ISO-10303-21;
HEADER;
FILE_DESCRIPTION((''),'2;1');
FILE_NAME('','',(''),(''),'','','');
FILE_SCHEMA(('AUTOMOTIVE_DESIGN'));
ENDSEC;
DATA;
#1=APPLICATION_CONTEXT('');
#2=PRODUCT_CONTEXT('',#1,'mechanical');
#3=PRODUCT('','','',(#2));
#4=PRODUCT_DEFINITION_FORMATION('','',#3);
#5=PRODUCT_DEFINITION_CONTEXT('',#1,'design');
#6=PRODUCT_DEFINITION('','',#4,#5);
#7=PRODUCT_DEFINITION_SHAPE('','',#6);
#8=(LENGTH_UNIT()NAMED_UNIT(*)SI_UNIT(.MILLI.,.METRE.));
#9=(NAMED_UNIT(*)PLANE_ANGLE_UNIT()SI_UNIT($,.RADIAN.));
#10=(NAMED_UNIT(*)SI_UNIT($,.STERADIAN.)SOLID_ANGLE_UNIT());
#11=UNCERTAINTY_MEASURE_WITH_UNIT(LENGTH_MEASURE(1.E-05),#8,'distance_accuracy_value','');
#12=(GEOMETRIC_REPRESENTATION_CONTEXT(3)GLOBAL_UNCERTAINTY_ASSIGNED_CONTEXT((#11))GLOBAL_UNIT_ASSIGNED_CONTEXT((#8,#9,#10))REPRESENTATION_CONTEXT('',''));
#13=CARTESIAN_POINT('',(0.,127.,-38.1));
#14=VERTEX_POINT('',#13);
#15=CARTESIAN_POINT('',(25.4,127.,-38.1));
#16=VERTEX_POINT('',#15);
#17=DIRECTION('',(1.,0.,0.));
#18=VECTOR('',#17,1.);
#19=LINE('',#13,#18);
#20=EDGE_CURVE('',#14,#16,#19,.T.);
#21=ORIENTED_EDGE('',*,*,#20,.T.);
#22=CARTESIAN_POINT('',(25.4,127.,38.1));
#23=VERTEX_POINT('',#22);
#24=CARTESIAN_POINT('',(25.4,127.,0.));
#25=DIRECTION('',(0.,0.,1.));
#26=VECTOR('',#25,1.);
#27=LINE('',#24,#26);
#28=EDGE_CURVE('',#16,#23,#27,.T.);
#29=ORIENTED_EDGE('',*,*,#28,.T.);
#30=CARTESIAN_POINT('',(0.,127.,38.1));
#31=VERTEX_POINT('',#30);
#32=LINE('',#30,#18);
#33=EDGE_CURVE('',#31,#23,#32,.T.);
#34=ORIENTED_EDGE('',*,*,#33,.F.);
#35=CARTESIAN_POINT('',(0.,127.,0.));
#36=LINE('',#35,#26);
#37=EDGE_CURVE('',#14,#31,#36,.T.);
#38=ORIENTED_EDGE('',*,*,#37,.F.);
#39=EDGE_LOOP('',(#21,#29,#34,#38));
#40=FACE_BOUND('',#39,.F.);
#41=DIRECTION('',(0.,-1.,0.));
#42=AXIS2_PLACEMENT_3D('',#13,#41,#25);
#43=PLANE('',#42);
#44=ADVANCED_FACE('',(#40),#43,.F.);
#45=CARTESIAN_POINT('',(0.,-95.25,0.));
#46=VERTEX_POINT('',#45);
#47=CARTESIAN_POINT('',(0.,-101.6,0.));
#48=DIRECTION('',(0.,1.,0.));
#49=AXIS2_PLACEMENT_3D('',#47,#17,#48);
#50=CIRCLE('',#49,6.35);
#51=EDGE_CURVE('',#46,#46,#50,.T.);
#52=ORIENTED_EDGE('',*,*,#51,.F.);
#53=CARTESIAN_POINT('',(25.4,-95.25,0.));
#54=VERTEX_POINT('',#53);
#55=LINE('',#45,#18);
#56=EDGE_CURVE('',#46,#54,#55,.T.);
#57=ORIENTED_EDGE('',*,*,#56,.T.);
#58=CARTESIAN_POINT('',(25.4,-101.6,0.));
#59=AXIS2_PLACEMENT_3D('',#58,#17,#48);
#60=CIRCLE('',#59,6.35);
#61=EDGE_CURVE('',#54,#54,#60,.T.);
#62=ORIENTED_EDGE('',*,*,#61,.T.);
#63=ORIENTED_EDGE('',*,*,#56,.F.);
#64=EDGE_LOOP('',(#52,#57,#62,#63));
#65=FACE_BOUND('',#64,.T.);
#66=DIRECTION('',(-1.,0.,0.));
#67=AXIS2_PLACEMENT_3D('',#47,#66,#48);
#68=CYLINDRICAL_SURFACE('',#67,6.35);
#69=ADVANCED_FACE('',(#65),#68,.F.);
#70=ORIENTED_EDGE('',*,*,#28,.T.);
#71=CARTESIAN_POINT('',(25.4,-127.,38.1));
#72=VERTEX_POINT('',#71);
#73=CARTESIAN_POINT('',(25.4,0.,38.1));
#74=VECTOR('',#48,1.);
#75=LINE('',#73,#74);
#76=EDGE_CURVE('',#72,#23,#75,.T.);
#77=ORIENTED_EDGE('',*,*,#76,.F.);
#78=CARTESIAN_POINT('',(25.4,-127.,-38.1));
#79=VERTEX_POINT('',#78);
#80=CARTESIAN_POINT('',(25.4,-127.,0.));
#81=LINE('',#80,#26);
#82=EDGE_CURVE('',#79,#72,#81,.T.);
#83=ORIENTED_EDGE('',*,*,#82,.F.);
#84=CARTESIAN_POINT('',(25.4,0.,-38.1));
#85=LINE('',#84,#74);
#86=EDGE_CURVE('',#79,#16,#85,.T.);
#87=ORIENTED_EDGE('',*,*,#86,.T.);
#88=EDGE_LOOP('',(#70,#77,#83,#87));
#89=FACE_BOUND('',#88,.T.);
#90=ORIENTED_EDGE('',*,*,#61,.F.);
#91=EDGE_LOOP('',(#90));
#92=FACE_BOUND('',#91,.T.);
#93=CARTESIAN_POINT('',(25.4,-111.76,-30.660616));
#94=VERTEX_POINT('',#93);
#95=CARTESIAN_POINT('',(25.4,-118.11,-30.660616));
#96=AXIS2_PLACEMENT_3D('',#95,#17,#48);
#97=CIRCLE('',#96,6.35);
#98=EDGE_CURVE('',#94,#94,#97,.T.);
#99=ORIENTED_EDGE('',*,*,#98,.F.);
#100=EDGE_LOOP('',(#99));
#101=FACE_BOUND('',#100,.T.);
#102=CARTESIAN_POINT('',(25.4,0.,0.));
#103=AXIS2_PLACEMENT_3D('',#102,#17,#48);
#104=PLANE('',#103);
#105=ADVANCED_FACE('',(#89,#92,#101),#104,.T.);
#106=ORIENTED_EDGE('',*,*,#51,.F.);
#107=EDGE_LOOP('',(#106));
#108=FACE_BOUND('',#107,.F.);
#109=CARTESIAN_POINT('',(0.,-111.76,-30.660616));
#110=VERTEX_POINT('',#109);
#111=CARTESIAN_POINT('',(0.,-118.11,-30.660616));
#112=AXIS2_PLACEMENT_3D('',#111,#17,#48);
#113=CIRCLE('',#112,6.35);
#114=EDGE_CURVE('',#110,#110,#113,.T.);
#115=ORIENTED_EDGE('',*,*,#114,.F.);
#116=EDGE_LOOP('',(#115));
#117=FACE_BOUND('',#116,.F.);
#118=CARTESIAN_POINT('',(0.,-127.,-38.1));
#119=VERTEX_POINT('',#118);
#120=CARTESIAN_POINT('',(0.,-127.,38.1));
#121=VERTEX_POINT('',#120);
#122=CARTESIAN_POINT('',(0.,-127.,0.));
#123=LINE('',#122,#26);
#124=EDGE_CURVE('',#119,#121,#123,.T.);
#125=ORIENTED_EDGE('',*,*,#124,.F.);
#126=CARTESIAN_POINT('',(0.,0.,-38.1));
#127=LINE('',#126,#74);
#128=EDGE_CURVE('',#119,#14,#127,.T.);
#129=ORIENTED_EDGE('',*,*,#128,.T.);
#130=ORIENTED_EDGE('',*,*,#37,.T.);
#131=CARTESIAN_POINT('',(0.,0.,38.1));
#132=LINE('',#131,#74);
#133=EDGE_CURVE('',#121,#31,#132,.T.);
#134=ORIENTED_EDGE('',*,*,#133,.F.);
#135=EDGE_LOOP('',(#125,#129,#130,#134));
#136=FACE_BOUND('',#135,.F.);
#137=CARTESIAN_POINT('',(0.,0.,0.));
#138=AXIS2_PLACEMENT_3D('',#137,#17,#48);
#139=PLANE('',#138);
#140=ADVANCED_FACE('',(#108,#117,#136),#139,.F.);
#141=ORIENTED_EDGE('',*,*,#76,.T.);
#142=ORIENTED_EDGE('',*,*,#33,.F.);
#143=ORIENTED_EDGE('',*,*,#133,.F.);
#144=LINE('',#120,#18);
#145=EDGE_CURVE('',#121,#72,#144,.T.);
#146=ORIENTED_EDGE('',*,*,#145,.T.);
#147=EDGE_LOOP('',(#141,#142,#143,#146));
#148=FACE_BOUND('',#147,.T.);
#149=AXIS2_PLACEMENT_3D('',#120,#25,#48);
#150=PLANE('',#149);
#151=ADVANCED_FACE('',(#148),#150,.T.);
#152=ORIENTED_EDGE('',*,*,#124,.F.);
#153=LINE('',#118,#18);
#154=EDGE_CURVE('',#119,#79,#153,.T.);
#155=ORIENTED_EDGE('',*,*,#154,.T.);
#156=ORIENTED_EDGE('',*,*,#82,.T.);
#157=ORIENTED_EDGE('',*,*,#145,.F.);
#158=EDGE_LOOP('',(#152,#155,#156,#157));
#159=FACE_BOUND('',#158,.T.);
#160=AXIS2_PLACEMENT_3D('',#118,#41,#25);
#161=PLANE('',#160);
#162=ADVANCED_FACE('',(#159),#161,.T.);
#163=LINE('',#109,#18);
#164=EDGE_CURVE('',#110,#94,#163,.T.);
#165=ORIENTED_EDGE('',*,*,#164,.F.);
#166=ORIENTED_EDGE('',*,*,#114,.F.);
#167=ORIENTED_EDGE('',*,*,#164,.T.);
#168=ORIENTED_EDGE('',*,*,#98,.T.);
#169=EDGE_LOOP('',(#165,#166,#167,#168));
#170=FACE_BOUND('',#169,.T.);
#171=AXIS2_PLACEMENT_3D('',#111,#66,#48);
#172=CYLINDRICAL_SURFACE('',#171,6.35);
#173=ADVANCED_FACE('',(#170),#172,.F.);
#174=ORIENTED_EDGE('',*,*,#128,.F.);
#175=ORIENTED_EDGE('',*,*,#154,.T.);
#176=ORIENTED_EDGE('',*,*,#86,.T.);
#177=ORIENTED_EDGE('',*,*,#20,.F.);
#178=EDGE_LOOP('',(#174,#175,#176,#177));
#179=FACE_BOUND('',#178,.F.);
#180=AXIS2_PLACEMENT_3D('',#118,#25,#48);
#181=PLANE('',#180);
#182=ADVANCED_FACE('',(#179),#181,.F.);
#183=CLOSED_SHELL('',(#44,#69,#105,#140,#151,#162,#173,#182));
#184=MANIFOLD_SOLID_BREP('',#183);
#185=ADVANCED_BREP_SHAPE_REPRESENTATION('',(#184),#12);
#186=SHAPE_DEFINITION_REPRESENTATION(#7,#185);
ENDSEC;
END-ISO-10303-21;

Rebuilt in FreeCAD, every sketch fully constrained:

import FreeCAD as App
import Part
import Sketcher
from FreeCAD import Vector
Q = App.Units.Quantity

doc = App.newDocument("Part")
body = doc.addObject("PartDesign::Body", "Body")

# Sketch on YZ plane
sketch1 = body.newObject("Sketcher::SketchObject", "Sketch")
sketch1.AttachmentSupport = (doc.getObject("YZ_Plane"), [""])
sketch1.MapMode = "FlatFace"
sketch1.addGeometry(Part.LineSegment(Vector(-127, 38, 0), Vector(-127, -38, 0)), False)
sketch1.addGeometry(Part.LineSegment(Vector(-127, -38, 0), Vector(127, -38, 0)), False)
sketch1.addGeometry(Part.LineSegment(Vector(127, -38, 0), Vector(127, 38, 0)), False)
sketch1.addGeometry(Part.LineSegment(Vector(127, 38, 0), Vector(-127, 38, 0)), False)
sketch1.addGeometry(Part.Circle(Vector(-118, -31, 0), Vector(0, 0, 1), 6), False)
sketch1.addGeometry(Part.Circle(Vector(-102, 0, 0), Vector(0, 0, 1), 6), False)
sketch1.addConstraint(Sketcher.Constraint("Coincident", 0, 2, 1, 1))
sketch1.addConstraint(Sketcher.Constraint("Coincident", 1, 2, 2, 1))
sketch1.addConstraint(Sketcher.Constraint("Coincident", 2, 2, 3, 1))
sketch1.addConstraint(Sketcher.Constraint("Coincident", 3, 2, 0, 1))
sketch1.addConstraint(Sketcher.Constraint("Vertical", 0))
sketch1.addConstraint(Sketcher.Constraint("Horizontal", 1))
sketch1.addConstraint(Sketcher.Constraint("Vertical", 2))
sketch1.addConstraint(Sketcher.Constraint("Horizontal", 3))
sketch1.addConstraint(Sketcher.Constraint("Equal", 4, 5))
sketch1.addConstraint(Sketcher.Constraint("Symmetric", 0, 2, 2, 2, -1, 1))
sketch1.addConstraint(Sketcher.Constraint("PointOnObject", 5, 3, -1))
sketch1.addConstraint(Sketcher.Constraint("Diameter", 4, Q("0.5 in")))
sketch1.addConstraint(Sketcher.Constraint("DistanceX", 1, 1, 1, 2, Q("10 in")))
sketch1.addConstraint(Sketcher.Constraint("DistanceY", 0, 2, 0, 1, Q("3 in")))
sketch1.addConstraint(Sketcher.Constraint("DistanceX", 5, 3, -1, 1, Q("4 in")))
sketch1.addConstraint(Sketcher.Constraint("DistanceX", 4, 3, -1, 1, Q("4.65 in")))
sketch1.addConstraint(Sketcher.Constraint("DistanceY", 4, 3, -1, 1, Q("30.660616 mm")))
pad1 = body.newObject("PartDesign::Pad", "Pad")
pad1.Profile = sketch1
pad1.Length = Q("1 in")

doc.recompute()
